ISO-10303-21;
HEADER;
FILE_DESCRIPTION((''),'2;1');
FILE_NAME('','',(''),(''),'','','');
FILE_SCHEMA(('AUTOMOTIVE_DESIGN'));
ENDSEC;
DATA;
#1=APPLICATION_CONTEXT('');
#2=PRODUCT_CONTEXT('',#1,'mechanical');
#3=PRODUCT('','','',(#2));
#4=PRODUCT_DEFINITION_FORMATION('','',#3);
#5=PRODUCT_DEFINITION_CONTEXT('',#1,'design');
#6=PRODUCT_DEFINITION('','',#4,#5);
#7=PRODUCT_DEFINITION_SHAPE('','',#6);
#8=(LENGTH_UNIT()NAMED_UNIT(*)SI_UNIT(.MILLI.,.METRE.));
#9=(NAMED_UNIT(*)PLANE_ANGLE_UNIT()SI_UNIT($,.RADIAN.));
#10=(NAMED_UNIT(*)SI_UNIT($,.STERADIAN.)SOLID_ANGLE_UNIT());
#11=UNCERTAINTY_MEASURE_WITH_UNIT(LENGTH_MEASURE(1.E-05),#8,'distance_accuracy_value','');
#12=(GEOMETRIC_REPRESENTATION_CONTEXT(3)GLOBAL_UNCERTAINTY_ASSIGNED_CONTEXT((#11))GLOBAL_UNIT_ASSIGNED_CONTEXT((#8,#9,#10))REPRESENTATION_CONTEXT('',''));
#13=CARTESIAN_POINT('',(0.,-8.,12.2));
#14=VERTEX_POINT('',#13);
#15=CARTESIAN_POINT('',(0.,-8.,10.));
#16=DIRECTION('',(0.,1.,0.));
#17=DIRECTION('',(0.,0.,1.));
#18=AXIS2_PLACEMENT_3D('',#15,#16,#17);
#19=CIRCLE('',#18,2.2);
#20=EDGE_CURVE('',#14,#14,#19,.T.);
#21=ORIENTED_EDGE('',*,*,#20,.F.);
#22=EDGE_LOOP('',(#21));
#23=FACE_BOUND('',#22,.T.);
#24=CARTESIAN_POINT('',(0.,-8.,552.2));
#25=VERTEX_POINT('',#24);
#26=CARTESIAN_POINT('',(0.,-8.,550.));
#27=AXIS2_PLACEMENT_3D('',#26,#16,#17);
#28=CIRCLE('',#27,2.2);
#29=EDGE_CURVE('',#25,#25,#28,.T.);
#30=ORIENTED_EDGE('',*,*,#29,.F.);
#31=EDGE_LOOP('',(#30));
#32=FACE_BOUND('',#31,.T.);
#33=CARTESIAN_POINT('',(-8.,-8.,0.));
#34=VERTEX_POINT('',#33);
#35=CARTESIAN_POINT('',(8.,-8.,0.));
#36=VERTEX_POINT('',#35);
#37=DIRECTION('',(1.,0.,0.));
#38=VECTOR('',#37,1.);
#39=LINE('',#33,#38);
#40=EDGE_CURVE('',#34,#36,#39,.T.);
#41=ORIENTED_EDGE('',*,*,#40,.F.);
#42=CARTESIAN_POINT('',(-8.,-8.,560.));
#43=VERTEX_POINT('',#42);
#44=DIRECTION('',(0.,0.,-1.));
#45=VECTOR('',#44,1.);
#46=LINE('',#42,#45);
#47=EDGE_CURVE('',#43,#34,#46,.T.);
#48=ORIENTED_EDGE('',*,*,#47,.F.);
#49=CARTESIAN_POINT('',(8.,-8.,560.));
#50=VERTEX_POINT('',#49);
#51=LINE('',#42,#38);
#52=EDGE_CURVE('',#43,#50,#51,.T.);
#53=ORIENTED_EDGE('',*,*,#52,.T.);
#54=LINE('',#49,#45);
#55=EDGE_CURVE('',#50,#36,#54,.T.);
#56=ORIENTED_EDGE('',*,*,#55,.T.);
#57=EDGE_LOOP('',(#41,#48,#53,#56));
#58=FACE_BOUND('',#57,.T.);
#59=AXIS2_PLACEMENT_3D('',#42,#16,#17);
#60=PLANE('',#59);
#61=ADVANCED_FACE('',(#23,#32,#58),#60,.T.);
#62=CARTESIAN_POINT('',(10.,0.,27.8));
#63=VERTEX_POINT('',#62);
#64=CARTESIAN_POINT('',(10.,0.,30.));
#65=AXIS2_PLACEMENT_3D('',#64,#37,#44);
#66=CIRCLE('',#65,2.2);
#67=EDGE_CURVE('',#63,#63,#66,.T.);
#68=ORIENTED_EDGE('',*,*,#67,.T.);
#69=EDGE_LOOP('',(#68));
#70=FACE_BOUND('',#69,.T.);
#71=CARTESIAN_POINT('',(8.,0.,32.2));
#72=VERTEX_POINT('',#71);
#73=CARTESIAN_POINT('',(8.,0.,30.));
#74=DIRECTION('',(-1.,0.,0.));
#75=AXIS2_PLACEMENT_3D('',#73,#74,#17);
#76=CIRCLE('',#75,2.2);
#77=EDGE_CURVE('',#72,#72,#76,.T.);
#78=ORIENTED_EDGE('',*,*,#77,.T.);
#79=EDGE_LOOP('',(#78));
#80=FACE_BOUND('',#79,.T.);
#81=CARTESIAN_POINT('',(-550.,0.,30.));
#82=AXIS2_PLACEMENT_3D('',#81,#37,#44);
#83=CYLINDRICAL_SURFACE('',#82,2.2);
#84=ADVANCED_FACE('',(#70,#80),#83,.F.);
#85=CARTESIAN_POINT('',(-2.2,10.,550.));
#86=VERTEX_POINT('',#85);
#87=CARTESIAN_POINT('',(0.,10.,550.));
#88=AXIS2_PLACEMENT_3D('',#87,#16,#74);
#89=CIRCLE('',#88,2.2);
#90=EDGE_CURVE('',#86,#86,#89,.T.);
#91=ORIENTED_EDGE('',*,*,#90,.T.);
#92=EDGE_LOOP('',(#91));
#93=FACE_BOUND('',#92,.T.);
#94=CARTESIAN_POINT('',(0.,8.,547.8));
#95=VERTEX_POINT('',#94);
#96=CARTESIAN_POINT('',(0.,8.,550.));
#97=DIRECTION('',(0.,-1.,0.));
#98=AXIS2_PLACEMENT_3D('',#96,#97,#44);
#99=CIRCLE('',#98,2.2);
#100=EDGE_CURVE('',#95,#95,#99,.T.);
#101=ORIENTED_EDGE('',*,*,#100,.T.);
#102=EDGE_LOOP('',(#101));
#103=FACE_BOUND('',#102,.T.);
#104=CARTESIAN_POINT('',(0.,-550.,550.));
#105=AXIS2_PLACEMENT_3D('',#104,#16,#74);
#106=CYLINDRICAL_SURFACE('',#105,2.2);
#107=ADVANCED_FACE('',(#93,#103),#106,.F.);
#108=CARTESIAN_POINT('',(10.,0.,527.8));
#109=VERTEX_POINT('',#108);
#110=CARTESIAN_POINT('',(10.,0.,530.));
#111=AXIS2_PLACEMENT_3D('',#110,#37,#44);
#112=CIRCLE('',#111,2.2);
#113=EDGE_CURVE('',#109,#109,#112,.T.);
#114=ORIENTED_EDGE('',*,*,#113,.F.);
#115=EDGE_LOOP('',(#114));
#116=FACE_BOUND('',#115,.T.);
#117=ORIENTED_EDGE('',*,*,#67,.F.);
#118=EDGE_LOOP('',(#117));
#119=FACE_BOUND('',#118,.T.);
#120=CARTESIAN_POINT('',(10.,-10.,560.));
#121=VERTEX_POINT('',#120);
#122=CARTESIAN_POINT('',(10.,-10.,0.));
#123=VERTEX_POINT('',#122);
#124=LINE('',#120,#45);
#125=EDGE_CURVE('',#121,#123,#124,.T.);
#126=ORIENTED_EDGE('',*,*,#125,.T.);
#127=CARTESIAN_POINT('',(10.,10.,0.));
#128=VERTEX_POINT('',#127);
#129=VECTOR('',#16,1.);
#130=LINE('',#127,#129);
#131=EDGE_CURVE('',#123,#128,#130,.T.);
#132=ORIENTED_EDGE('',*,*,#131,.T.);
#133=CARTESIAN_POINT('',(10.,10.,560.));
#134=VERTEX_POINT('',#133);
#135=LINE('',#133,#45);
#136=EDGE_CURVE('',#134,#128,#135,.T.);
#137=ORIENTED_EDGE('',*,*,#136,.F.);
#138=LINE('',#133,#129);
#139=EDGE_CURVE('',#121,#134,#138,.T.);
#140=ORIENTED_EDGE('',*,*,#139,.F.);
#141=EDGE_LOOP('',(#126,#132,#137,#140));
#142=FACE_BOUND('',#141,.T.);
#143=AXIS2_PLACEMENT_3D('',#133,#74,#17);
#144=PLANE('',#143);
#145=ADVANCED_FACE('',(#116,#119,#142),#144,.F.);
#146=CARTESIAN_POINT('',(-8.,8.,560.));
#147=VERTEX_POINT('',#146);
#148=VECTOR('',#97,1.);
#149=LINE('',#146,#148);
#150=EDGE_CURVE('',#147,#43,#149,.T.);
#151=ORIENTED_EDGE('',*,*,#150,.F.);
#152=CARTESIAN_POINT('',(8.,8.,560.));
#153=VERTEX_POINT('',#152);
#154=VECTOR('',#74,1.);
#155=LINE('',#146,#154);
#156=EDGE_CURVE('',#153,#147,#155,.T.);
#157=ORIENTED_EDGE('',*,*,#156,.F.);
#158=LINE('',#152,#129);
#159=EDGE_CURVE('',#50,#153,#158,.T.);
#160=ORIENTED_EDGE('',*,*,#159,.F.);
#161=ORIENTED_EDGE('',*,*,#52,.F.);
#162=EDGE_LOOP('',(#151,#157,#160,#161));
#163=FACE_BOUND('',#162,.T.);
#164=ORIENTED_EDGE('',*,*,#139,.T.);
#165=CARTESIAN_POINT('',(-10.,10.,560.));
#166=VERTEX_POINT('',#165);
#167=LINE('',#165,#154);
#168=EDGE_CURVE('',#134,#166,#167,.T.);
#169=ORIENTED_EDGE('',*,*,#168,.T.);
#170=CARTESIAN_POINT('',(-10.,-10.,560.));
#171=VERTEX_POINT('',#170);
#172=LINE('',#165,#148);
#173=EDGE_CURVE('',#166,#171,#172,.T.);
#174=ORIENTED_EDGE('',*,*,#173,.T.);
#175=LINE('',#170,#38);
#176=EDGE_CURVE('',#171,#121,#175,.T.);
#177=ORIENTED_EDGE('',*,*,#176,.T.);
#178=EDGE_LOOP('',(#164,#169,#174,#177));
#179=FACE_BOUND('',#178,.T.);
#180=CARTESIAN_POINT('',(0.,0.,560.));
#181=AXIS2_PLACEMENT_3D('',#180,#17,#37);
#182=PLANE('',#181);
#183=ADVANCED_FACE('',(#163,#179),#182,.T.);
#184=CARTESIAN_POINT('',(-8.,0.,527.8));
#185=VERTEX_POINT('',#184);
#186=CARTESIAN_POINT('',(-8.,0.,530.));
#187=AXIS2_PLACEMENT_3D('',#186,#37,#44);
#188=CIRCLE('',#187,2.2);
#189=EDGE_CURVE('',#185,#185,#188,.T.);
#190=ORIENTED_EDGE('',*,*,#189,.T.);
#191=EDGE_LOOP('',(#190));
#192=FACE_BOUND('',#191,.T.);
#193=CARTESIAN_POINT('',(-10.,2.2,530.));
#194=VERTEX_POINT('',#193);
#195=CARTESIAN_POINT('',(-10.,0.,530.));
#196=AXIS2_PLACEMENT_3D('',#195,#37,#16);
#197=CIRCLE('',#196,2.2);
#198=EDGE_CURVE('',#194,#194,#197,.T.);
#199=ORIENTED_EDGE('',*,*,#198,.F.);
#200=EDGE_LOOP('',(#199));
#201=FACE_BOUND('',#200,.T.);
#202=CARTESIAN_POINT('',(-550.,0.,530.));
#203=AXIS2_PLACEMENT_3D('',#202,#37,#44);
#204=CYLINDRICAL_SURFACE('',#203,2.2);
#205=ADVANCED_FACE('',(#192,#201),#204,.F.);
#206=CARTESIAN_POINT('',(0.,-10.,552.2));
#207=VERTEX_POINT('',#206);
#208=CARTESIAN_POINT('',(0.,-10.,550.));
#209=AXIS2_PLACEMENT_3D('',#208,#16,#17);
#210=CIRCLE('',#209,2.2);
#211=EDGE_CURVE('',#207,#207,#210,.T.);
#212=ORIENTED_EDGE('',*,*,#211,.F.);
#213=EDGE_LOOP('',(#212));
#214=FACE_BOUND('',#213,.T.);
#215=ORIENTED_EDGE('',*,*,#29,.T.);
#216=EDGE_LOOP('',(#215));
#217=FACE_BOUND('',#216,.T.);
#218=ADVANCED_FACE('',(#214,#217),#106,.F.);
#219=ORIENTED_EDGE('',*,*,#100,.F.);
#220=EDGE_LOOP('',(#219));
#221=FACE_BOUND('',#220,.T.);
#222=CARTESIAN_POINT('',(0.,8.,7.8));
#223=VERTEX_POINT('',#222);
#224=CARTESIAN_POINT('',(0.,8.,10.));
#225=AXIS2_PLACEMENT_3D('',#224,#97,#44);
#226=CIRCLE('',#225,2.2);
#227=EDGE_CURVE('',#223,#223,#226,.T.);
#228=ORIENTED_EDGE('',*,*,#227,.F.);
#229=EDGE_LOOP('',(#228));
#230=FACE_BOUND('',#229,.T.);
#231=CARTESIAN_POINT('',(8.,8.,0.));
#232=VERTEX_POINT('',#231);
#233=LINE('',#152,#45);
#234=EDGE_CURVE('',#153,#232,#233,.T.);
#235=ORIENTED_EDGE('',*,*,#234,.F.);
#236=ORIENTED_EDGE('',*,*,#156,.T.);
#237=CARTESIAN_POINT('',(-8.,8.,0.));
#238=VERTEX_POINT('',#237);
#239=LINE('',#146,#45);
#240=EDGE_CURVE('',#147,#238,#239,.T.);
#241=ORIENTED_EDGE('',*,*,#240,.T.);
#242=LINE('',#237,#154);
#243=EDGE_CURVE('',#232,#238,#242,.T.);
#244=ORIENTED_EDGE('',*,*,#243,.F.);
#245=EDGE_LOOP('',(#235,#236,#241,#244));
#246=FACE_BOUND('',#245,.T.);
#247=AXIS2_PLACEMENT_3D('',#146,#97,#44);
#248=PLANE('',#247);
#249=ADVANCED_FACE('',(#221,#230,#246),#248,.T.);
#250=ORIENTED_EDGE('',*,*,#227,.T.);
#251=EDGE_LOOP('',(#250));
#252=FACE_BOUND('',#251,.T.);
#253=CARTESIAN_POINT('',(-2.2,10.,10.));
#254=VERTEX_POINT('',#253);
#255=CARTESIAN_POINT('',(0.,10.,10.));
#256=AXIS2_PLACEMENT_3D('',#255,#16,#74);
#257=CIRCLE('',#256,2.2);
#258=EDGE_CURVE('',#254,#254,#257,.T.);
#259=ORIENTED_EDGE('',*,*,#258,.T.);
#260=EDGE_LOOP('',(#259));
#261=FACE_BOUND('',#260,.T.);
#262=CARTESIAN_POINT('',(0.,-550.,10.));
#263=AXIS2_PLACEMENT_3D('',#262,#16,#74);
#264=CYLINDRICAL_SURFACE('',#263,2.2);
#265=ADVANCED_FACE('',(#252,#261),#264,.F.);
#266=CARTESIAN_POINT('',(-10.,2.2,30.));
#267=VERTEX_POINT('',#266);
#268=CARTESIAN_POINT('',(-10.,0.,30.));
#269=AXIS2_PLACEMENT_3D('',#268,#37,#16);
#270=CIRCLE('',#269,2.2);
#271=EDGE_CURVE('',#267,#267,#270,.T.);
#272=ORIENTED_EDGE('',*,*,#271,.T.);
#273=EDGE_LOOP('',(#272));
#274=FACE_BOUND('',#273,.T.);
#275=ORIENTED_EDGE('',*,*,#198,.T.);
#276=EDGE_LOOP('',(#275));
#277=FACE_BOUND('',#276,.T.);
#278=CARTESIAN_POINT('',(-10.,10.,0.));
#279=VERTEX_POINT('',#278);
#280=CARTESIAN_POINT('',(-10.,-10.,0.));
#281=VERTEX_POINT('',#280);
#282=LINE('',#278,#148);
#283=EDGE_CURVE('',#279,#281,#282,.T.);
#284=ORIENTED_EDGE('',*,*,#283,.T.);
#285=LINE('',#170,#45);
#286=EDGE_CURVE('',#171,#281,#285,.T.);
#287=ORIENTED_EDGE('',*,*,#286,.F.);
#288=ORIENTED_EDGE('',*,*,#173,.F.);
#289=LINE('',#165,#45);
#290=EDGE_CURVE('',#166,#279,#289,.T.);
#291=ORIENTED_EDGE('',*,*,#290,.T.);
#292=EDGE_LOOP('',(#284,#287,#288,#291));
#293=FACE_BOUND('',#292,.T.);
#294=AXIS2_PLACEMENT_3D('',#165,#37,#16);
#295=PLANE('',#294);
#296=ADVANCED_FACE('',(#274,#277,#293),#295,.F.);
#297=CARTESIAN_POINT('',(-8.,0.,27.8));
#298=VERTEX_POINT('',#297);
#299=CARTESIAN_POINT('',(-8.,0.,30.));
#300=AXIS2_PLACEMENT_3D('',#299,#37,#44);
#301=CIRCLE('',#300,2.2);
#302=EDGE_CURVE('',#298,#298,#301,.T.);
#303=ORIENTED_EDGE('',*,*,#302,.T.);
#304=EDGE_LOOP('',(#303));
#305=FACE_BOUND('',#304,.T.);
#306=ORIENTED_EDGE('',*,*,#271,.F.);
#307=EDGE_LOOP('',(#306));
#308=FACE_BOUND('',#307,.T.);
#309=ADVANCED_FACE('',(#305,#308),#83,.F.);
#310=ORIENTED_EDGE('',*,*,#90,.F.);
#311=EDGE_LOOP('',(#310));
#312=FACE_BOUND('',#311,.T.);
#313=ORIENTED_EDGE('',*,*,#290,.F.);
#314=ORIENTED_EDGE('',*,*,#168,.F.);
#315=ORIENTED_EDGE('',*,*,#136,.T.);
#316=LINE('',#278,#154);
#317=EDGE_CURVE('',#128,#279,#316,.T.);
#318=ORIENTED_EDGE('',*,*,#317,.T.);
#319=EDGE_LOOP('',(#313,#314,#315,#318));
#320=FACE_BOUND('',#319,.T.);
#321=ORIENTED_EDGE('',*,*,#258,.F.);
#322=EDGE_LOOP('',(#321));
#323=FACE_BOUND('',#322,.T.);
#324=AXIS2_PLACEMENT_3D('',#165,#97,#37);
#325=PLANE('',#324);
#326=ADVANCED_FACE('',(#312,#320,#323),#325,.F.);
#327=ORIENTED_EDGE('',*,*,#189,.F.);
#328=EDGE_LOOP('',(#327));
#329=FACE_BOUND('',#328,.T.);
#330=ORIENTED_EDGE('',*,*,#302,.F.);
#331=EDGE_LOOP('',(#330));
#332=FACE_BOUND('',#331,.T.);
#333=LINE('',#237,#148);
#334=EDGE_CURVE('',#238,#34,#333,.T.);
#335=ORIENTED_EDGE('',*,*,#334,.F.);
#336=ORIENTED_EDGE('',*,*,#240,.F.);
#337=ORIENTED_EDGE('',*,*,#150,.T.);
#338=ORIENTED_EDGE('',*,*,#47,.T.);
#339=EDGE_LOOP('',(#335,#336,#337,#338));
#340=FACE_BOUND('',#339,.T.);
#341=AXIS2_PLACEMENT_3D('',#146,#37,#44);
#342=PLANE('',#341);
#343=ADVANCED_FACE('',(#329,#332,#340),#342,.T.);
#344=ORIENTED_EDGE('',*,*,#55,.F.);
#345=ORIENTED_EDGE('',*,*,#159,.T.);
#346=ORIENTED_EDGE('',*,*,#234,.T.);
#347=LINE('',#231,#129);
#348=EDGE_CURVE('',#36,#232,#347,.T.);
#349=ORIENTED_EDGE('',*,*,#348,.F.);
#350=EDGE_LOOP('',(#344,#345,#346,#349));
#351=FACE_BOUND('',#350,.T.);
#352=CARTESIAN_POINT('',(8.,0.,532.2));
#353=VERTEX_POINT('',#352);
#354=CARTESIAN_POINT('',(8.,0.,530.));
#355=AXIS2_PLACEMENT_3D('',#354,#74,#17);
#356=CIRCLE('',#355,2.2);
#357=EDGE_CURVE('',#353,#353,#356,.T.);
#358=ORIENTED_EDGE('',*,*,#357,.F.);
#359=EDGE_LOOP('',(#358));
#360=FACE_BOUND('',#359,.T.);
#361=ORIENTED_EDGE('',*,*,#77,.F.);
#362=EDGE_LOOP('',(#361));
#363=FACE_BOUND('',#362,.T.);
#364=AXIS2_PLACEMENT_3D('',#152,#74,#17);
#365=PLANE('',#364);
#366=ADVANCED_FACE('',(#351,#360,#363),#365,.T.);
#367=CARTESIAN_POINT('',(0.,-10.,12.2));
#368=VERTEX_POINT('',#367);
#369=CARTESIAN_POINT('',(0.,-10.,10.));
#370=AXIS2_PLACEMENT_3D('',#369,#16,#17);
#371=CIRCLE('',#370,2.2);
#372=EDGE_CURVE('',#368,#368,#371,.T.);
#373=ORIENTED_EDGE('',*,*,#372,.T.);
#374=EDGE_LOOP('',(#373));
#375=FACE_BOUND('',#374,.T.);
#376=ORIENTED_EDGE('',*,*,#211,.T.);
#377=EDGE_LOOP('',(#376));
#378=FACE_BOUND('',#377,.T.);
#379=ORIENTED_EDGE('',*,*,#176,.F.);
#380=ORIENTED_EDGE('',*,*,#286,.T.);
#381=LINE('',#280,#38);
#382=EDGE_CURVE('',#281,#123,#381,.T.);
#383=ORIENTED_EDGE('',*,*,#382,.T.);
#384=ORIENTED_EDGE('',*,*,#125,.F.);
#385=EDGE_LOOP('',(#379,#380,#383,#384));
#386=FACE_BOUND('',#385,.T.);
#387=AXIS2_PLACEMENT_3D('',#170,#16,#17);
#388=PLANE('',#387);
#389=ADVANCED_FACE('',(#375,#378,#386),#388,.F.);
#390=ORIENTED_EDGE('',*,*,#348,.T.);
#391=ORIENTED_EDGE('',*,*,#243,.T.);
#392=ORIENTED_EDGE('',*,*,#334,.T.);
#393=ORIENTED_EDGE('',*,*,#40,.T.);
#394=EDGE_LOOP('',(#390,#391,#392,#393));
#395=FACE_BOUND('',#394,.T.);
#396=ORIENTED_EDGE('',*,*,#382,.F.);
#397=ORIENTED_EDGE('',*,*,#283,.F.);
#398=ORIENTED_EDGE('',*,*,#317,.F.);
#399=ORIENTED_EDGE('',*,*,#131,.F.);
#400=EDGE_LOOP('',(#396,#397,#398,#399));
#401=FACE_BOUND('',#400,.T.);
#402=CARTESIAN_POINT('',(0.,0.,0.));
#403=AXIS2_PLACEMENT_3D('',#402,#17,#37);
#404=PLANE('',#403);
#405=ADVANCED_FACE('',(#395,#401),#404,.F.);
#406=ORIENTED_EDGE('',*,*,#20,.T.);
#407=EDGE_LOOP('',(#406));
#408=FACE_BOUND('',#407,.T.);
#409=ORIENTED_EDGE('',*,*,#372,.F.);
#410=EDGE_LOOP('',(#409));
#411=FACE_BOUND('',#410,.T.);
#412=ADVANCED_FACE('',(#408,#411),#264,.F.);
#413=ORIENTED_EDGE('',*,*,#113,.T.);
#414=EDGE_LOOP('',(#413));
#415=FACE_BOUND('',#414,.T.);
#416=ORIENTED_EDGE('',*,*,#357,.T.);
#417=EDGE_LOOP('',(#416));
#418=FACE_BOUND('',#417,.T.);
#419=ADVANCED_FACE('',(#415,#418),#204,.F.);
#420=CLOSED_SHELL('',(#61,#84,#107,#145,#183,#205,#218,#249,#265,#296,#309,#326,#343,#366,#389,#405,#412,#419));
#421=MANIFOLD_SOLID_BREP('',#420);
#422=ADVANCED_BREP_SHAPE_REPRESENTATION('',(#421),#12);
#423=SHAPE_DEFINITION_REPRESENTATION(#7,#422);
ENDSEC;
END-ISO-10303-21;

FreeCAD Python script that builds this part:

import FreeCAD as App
import Part
import Sketcher

V = App.Vector


def add_polygon(sketch, points):
    """Adds a closed chain of lines whose ends are joined by coincident constraints."""
    first, n = sketch.GeometryCount, len(points)
    for a, b in zip(points, points[1:] + points[:1]):
        sketch.addGeometry(Part.LineSegment(App.Vector(*a, 0), App.Vector(*b, 0)), False)
    for i in range(n):
        sketch.addConstraint(Sketcher.Constraint("Coincident", first + i, 2, first + (i + 1) % n, 1))

doc = App.newDocument("Part")
body = doc.addObject("PartDesign::Body", "Body")

# Sketch on XY plane
sketch1 = body.newObject("Sketcher::SketchObject", "Sketch")
sketch1.AttachmentSupport = (doc.getObject("XY_Plane"), [""])
sketch1.MapMode = "FlatFace"
add_polygon(sketch1, [(-10, 10), (-10, -10), (10, -10), (10, 10)])  # lines 0-3
add_polygon(sketch1, [(8, -8), (-8, -8), (-8, 8), (8, 8)])  # lines 4-7
sketch1.addConstraint(Sketcher.Constraint("Vertical", 0))
sketch1.addConstraint(Sketcher.Constraint("Horizontal", 1))
sketch1.addConstraint(Sketcher.Constraint("Vertical", 2))
sketch1.addConstraint(Sketcher.Constraint("Horizontal", 3))
sketch1.addConstraint(Sketcher.Constraint("Horizontal", 4))
sketch1.addConstraint(Sketcher.Constraint("Vertical", 5))
sketch1.addConstraint(Sketcher.Constraint("Horizontal", 6))
sketch1.addConstraint(Sketcher.Constraint("Vertical", 7))
sketch1.addConstraint(Sketcher.Constraint("Symmetric", 0, 2, 2, 2, -1, 1))
sketch1.addConstraint(Sketcher.Constraint("Symmetric", 4, 2, 6, 2, -1, 1))
sketch1.addConstraint(Sketcher.Constraint("Equal", 3, 0))
sketch1.addConstraint(Sketcher.Constraint("Equal", 6, 5))
sketch1.addConstraint(Sketcher.Constraint("DistanceX", 1, 1, 1, 2, 20.0))
sketch1.addConstraint(Sketcher.Constraint("DistanceX", 4, 2, 4, 1, 16.0))
pad1 = body.newObject("PartDesign::Pad", "Pad")
pad1.Profile = sketch1
pad1.Length = 560

# Sketch on YZ plane
sketch2 = body.newObject("Sketcher::SketchObject", "Sketch001")
sketch2.AttachmentSupport = (doc.getObject("YZ_Plane"), [""])
sketch2.MapMode = "FlatFace"
sketch2.AttachmentOffset = App.Placement(V(0, 0, 10), App.Rotation())
sketch2.addGeometry(Part.Circle(V(0, 530, 0), V(0, 0, 1), 2.2), False)
sketch2.addGeometry(Part.Circle(V(0, 30, 0), V(0, 0, 1), 2.2), False)
sketch2.addConstraint(Sketcher.Constraint("Equal", 0, 1))
sketch2.addConstraint(Sketcher.Constraint("PointOnObject", 0, 3, -2))
sketch2.addConstraint(Sketcher.Constraint("PointOnObject", 1, 3, -2))
sketch2.addConstraint(Sketcher.Constraint("Diameter", 0, 4.4))
sketch2.addConstraint(Sketcher.Constraint("DistanceY", -1, 1, 0, 3, 530.0))
sketch2.addConstraint(Sketcher.Constraint("DistanceY", -1, 1, 1, 3, 30.0))
pocket1 = body.newObject("PartDesign::Pocket", "Pocket")
pocket1.Profile = sketch2
pocket1.Length = 560

# Sketch on XZ plane
sketch3 = body.newObject("Sketcher::SketchObject", "Sketch002")
sketch3.AttachmentSupport = (doc.getObject("XZ_Plane"), [""])
sketch3.MapMode = "FlatFace"
sketch3.AttachmentOffset = App.Placement(V(0, 0, -10), App.Rotation())
sketch3.addGeometry(Part.Circle(V(0, 550, 0), V(0, 0, 1), 2.2), False)
sketch3.addGeometry(Part.Circle(V(0, 10, 0), V(0, 0, 1), 2.2), False)
sketch3.addConstraint(Sketcher.Constraint("Equal", 0, 1))
sketch3.addConstraint(Sketcher.Constraint("PointOnObject", 0, 3, -2))
sketch3.addConstraint(Sketcher.Constraint("PointOnObject", 1, 3, -2))
sketch3.addConstraint(Sketcher.Constraint("Diameter", 0, 4.4))
sketch3.addConstraint(Sketcher.Constraint("DistanceY", -1, 1, 0, 3, 550.0))
sketch3.addConstraint(Sketcher.Constraint("DistanceY", -1, 1, 1, 3, 10.0))
pocket2 = body.newObject("PartDesign::Pocket", "Pocket001")
pocket2.Profile = sketch3
pocket2.Length = 560
pocket2.Reversed = True

doc.recompute()
